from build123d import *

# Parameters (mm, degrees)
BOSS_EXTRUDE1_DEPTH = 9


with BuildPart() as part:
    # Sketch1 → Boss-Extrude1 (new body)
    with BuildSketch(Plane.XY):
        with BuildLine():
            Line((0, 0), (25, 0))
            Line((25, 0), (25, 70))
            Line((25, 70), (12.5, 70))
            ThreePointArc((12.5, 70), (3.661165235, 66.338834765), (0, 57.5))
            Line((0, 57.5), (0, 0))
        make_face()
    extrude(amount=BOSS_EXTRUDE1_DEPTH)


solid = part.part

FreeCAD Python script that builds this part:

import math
import FreeCAD as App
import Part
import Sketcher
from FreeCAD import Vector

doc = App.newDocument("Part")
params = doc.addObject("Spreadsheet::Sheet", "Params")
for row, (alias, value) in enumerate([
    ("sketch1_radius", "12.5 mm"),
    ("sketch1_width", "25 mm"),
    ("sketch1_height", "70 mm"),
    ("pad1_length", "9 mm"),
], start=1):
    params.set(f"A{row}", alias)
    params.set(f"B{row}", "=" + value)
    params.setAlias(f"B{row}", alias)

body = doc.addObject("PartDesign::Body", "Body")

sketch1 = body.newObject("Sketcher::SketchObject", "Sketch")
sketch1.AttachmentSupport = (doc.getObject("XY_Plane"), [""])
sketch1.MapMode = "FlatFace"
sketch1.addGeometry([
    Part.LineSegment(Vector(0, 0, 0), Vector(25, 0, 0)),
    Part.LineSegment(Vector(25, 0, 0), Vector(25, 70, 0)),
    Part.LineSegment(Vector(25, 70, 0), Vector(12.5, 70, 0)),
    Part.ArcOfCircle(Part.Circle(Vector(12.5, 57.5, 0), Vector(0, 0, 1), 12.5), math.radians(90), math.radians(180)),
    Part.LineSegment(Vector(0, 57.5, 0), Vector(0, 0, 0)),
], False)
sketch1.addConstraint([
    Sketcher.Constraint("Coincident", 0, 2, 1, 1),
    Sketcher.Constraint("Coincident", 1, 2, 2, 1),
    Sketcher.Constraint("Tangent", 2, 2, 3, 1),
    Sketcher.Constraint("Tangent", 3, 2, 4, 1),
    Sketcher.Constraint("Coincident", 4, 2, 0, 1),
    Sketcher.Constraint("Horizontal", 0),
    Sketcher.Constraint("Vertical", 1),
    Sketcher.Constraint("Horizontal", 2),
    Sketcher.Constraint("Vertical", 4),
    Sketcher.Constraint("Coincident", 4, 2, -1, 1),
    Sketcher.Constraint("Radius", 3, 12.5),
    Sketcher.Constraint("DistanceX", 0, 1, 0, 2, 25.0),
    Sketcher.Constraint("DistanceY", 1, 1, 1, 2, 70.0),
])
sketch1.setExpression("Constraints[10]", "Params.sketch1_radius")
sketch1.setExpression("Constraints[11]", "Params.sketch1_width")
sketch1.setExpression("Constraints[12]", "Params.sketch1_height")
pad1 = body.newObject("PartDesign::Pad", "Pad")
pad1.Profile = sketch1
pad1.setExpression("Length", "Params.pad1_length")

doc.recompute()
